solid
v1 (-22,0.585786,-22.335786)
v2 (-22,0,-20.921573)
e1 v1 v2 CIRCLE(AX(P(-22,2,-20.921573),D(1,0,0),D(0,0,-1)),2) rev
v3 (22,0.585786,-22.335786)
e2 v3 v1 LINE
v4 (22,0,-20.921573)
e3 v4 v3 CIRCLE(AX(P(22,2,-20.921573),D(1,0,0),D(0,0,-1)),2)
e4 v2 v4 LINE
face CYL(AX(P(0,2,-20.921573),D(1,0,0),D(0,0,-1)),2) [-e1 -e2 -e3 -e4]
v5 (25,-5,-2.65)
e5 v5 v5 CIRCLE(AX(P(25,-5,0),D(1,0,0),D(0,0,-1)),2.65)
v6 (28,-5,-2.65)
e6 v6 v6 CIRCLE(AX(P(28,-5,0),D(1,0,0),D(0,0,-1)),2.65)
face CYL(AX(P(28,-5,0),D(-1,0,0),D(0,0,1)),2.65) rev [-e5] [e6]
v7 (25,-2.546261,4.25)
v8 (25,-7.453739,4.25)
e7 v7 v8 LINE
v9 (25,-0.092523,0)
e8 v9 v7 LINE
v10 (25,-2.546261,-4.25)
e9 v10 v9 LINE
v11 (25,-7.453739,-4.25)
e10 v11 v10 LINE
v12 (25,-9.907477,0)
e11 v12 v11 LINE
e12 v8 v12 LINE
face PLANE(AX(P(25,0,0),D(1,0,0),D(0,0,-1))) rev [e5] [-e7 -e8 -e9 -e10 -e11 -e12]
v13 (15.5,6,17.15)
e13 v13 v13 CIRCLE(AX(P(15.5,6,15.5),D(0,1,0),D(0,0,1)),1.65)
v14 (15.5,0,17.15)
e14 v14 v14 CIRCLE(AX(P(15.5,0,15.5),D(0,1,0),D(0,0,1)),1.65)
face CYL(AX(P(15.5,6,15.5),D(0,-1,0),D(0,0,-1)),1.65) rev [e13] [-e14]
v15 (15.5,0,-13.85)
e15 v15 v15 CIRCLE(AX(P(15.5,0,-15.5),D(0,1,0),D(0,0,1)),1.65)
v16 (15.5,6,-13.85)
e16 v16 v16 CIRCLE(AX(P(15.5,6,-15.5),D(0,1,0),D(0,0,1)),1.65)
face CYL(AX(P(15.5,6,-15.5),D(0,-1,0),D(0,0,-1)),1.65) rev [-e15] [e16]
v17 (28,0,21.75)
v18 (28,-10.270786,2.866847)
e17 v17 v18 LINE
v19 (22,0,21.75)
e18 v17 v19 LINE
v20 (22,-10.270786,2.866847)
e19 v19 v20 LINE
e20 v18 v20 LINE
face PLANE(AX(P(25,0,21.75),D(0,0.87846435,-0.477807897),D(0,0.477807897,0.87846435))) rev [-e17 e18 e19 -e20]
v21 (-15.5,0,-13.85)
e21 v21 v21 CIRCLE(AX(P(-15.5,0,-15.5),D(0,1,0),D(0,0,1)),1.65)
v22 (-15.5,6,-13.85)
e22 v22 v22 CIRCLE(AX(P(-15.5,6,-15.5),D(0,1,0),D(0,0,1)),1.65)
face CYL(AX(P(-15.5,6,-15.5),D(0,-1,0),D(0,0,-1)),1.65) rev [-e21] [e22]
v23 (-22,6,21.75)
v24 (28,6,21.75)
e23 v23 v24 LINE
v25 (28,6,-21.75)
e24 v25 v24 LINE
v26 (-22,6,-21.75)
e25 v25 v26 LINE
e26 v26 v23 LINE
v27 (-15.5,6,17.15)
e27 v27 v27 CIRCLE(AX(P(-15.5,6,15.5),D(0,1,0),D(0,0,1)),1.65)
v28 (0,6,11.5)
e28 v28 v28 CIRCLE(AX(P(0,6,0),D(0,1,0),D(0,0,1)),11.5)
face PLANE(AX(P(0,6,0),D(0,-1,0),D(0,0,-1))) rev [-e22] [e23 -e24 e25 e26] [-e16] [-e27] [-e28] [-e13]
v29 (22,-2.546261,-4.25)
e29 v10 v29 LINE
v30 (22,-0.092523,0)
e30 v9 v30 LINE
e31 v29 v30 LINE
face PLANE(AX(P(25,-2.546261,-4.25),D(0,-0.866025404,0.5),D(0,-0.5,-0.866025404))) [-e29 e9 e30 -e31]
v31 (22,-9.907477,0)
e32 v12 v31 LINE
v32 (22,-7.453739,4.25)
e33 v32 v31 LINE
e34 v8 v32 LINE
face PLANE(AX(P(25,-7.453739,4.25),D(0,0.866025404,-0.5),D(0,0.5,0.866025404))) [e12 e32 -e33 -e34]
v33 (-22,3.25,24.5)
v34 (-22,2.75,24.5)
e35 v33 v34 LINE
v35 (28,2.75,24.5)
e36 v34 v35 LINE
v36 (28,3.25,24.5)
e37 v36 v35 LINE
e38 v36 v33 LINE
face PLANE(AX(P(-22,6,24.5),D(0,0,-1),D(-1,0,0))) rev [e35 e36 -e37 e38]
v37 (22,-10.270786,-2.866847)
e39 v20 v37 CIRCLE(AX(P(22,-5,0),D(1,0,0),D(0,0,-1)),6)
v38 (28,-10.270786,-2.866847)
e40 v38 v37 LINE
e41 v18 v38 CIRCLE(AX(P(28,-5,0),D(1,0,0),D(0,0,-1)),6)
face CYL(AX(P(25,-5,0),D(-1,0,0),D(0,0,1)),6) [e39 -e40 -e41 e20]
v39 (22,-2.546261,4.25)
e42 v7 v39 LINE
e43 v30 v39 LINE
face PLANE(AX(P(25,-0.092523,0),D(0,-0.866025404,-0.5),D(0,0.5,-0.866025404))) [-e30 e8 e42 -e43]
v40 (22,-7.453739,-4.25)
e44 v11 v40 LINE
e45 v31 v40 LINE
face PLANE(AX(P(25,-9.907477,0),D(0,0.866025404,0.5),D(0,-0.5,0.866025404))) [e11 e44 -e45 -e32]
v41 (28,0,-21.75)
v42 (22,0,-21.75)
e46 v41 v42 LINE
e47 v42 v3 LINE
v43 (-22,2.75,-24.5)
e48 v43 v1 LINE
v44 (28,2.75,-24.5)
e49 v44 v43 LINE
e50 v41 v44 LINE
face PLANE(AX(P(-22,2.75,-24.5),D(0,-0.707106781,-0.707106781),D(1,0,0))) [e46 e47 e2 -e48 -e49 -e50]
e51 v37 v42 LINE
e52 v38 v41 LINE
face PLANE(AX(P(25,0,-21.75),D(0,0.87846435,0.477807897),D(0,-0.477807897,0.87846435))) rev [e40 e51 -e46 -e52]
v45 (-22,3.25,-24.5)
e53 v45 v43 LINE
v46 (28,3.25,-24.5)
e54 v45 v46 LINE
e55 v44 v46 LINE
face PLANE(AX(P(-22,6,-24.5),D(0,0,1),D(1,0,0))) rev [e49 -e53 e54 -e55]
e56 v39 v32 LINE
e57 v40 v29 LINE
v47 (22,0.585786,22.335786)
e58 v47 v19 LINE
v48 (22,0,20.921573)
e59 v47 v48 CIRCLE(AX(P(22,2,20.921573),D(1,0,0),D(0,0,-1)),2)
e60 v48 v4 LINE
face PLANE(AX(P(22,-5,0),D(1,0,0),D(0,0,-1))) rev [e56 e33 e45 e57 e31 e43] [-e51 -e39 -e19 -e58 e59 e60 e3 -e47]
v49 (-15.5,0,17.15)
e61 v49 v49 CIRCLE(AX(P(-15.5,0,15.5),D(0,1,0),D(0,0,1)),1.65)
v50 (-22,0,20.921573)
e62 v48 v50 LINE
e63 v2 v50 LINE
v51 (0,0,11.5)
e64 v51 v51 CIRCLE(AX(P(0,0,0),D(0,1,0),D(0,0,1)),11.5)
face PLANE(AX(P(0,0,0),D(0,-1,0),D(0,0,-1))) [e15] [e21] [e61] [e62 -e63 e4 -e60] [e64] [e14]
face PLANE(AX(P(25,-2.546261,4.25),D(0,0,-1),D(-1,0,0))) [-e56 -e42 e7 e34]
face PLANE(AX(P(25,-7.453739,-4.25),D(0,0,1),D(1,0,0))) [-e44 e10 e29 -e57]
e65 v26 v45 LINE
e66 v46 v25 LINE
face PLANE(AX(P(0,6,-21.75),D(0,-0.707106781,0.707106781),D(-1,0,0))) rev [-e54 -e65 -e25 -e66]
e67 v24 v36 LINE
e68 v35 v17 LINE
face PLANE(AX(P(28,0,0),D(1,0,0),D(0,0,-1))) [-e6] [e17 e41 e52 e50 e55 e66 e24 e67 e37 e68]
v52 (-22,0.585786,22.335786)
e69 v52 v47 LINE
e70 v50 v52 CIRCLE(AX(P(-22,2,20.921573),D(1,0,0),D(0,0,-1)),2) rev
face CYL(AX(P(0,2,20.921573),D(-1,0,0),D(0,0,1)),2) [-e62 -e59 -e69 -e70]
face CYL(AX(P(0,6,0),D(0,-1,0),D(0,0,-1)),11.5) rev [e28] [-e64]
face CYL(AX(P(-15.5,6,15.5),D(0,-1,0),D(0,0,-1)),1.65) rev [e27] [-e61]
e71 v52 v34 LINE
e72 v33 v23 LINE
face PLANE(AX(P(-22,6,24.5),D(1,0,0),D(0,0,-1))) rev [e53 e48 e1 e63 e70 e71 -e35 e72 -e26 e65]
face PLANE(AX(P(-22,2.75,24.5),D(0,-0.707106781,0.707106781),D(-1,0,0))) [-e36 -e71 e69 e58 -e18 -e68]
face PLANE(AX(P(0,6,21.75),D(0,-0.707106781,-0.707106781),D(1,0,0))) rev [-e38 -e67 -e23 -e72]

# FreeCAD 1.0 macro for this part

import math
import FreeCAD as App
import Part
import Sketcher
from FreeCAD import Vector
Q = App.Units.Quantity


def edges_at(feature, points):
    """Names of the edges that pass closest to the given points."""
    edges = feature.Shape.Edges
    near = lambda p: min(range(len(edges)), key=lambda i: edges[i].distToShape(Part.Vertex(*p))[0])
    return sorted({f"Edge{near(p) + 1}" for p in points})


def add_polygon(sketch, points):
    """Adds a closed chain of lines whose ends are joined by coincident constraints."""
    first, n = sketch.GeometryCount, len(points)
    for a, b in zip(points, points[1:] + points[:1]):
        sketch.addGeometry(Part.LineSegment(App.Vector(*a, 0), App.Vector(*b, 0)), False)
    for i in range(n):
        sketch.addConstraint(Sketcher.Constraint("Coincident", first + i, 2, first + (i + 1) % n, 1))

doc = App.newDocument("Part")
body = doc.addObject("PartDesign::Body", "Body")

sketch1 = body.newObject("Sketcher::SketchObject", "Sketch")
sketch1.AttachmentSupport = (doc.getObject("XZ_Plane"), [""])
sketch1.MapMode = "FlatFace"
add_polygon(sketch1, [(-22, -24.5), (-22, 24.5), (22, 24.5), (22, -24.5)])
sketch1.addGeometry(Part.Circle(Vector(-15.5, 15.5, 0), Vector(0, 0, 1), 1.6), False)
sketch1.addGeometry(Part.Circle(Vector(15.5, 15.5, 0), Vector(0, 0, 1), 1.6), False)
sketch1.addGeometry(Part.Circle(Vector(-15.5, -15.5, 0), Vector(0, 0, 1), 1.6), False)
sketch1.addGeometry(Part.Circle(Vector(0, 0, 0), Vector(0, 0, 1), 11.5), False)
sketch1.addGeometry(Part.Circle(Vector(15.5, -15.5, 0), Vector(0, 0, 1), 1.6), False)
sketch1.addConstraint([
    Sketcher.Constraint("Vertical", 0),
    Sketcher.Constraint("Horizontal", 1),
    Sketcher.Constraint("Vertical", 2),
    Sketcher.Constraint("Horizontal", 3),
    Sketcher.Constraint("Coincident", 7, 3, -1, 1),
    Sketcher.Constraint("Equal", 4, 5),
    Sketcher.Constraint("Equal", 5, 6),
    Sketcher.Constraint("Equal", 6, 8),
    Sketcher.Constraint("Symmetric", 5, 3, 6, 3, -1, 1),
    Sketcher.Constraint("Symmetric", 4, 3, 8, 3, -1, 1),
    Sketcher.Constraint("Symmetric", 0, 2, 2, 2, -1, 1),
    Sketcher.Constraint("Symmetric", 4, 3, 5, 3, -2),
    Sketcher.Constraint("Diameter", 7, Q("23 mm")),
    Sketcher.Constraint("Diameter", 4, Q("3.3 mm")),
    Sketcher.Constraint("DistanceX", 1, 1, 1, 2, Q("44 mm")),
    Sketcher.Constraint("DistanceY", 0, 1, 0, 2, Q("49 mm")),
    Sketcher.Constraint("DistanceX", 4, 3, 5, 3, Q("31 mm")),
    Sketcher.Constraint("DistanceY", 6, 3, 4, 3, Q("31 mm")),
])
pad1 = body.newObject("PartDesign::Pad", "Pad")
pad1.Profile = sketch1
pad1.Length = 6
pad1.Reversed = True
doc.recompute()

chamfer = body.newObject("PartDesign::Chamfer", "Chamfer")
chamfer.Base = (pad1, edges_at(pad1, [
    (0, 6, 24.5),
    (0, 0, 24.5),
    (0, 0, -24.5),
    (0, 6, -24.5),
]))
chamfer.Size = 2.75

sketch2 = body.newObject("Sketcher::SketchObject", "Sketch001")
sketch2.AttachmentSupport = (doc.getObject("YZ_Plane"), [""])
sketch2.MapMode = "FlatFace"
sketch2.AttachmentOffset = App.Placement(Vector(0, 0, 22), App.Rotation())
sketch2.addGeometry(Part.LineSegment(Vector(6, -21.8, 0), Vector(6, 21.8, 0)), False)
sketch2.addGeometry(Part.LineSegment(Vector(6, 21.8, 0), Vector(0, 21.8, 0)), False)
sketch2.addGeometry(Part.LineSegment(Vector(0, 21.8, 0), Vector(-10.3, 2.9, 0)), False)
sketch2.addGeometry(Part.ArcOfCircle(Part.Circle(Vector(-5, 0, 0), Vector(0, 0, 1), 6), math.radians(151), math.radians(209)), False)
sketch2.addGeometry(Part.LineSegment(Vector(-10.3, -2.9, 0), Vector(0, -21.8, 0)), False)
sketch2.addGeometry(Part.LineSegment(Vector(0, -21.8, 0), Vector(6, -21.8, 0)), False)
add_polygon(sketch2, [(-9.9, 0), (-7.5, 4.2), (-2.5, 4.2), (-0.1, 0), (-2.5, -4.2), (-7.5, -4.2)])
sketch2.addConstraint([
    Sketcher.Constraint("Coincident", 0, 2, 1, 1),
    Sketcher.Constraint("Coincident", 1, 2, 2, 1),
    Sketcher.Constraint("Tangent", 2, 2, 3, 1),
    Sketcher.Constraint("Tangent", 3, 2, 4, 1),
    Sketcher.Constraint("Coincident", 4, 2, 5, 1),
    Sketcher.Constraint("Coincident", 5, 2, 0, 1),
    Sketcher.Constraint("Vertical", 0),
    Sketcher.Constraint("Horizontal", 1),
    Sketcher.Constraint("Horizontal", 5),
    Sketcher.Constraint("Horizontal", 7),
    Sketcher.Constraint("Horizontal", 10),
    Sketcher.Constraint("Symmetric", 1, 2, 4, 2, -1, 1),
    Sketcher.Constraint("Symmetric", 2, 2, 3, 2, -1),
    Sketcher.Constraint("Symmetric", 7, 2, 9, 2, -1),
    Sketcher.Constraint("PointOnObject", 8, 2, -1),
    Sketcher.Constraint("PointOnObject", 11, 2, -1),
    Sketcher.Constraint("Parallel", 6, 9),
    Sketcher.Constraint("Parallel", 8, 11),
    Sketcher.Constraint("Radius", 3, Q("6 mm")),
    Sketcher.Constraint("DistanceX", 1, 2, 1, 1, Q("6 mm")),
    Sketcher.Constraint("Angle", 6, Q("60 deg")),
    Sketcher.Constraint("DistanceY", 0, 1, 0, 2, Q("43.5 mm")),
    Sketcher.Constraint("DistanceX", 3, 3, -1, 1, Q("5 mm")),
    Sketcher.Constraint("DistanceY", 6, 2, 1, 2, Q("17.5 mm")),
    Sketcher.Constraint("DistanceX", 7, 1, 7, 2, Q("4.907477 mm")),
    Sketcher.Constraint("DistanceX", 6, 2, -1, 1, Q("7.453739 mm")),
])
pad2 = body.newObject("PartDesign::Pad", "Pad001")
pad2.Profile = sketch2
pad2.Length = 3

sketch3 = body.newObject("Sketcher::SketchObject", "Sketch002")
sketch3.AttachmentSupport = (doc.getObject("YZ_Plane"), [""])
sketch3.MapMode = "FlatFace"
sketch3.AttachmentOffset = App.Placement(Vector(0, 0, 25), App.Rotation())
sketch3.addGeometry([
    Part.LineSegment(Vector(6, -21.8, 0), Vector(6, 21.8, 0)),
    Part.LineSegment(Vector(6, 21.8, 0), Vector(0, 21.8, 0)),
    Part.LineSegment(Vector(0, 21.8, 0), Vector(-10.3, 2.9, 0)),
    Part.ArcOfCircle(Part.Circle(Vector(-5, 0, 0), Vector(0, 0, 1), 6), math.radians(151), math.radians(209)),
    Part.LineSegment(Vector(-10.3, -2.9, 0), Vector(0, -21.8, 0)),
    Part.LineSegment(Vector(0, -21.8, 0), Vector(6, -21.8, 0)),
    Part.Circle(Vector(-5, 0, 0), Vector(0, 0, 1), 2.6),
], False)
sketch3.addConstraint([
    Sketcher.Constraint("Coincident", 0, 2, 1, 1),
    Sketcher.Constraint("Coincident", 1, 2, 2, 1),
    Sketcher.Constraint("Tangent", 2, 2, 3, 1),
    Sketcher.Constraint("Tangent", 3, 2, 4, 1),
    Sketcher.Constraint("Coincident", 4, 2, 5, 1),
    Sketcher.Constraint("Coincident", 5, 2, 0, 1),
    Sketcher.Constraint("Vertical", 0),
    Sketcher.Constraint("Horizontal", 1),
    Sketcher.Constraint("Horizontal", 5),
    Sketcher.Constraint("Coincident", 6, 3, 3, 3),
    Sketcher.Constraint("Symmetric", 1, 2, 4, 2, -1, 1),
    Sketcher.Constraint("Symmetric", 2, 2, 3, 2, -1),
    Sketcher.Constraint("Radius", 3, Q("6 mm")),
    Sketcher.Constraint("Diameter", 6, Q("5.3 mm")),
    Sketcher.Constraint("DistanceX", 1, 2, 1, 1, Q("6 mm")),
    Sketcher.Constraint("DistanceY", 0, 1, 0, 2, Q("43.5 mm")),
    Sketcher.Constraint("DistanceX", 3, 3, -1, 1, Q("5 mm")),
])
pad3 = body.newObject("PartDesign::Pad", "Pad002")
pad3.Profile = sketch3
pad3.Length = 3

sketch4 = body.newObject("Sketcher::SketchObject", "Sketch003")
sketch4.AttachmentSupport = (doc.getObject("YZ_Plane"), [""])
sketch4.MapMode = "FlatFace"
sketch4.AttachmentOffset = App.Placement(Vector(0, 0, 22), App.Rotation())
add_polygon(sketch4, [(0, 21.8), (6, 21.8), (3.2, 24.5), (2.8, 24.5)])
add_polygon(sketch4, [(6, -21.8), (0, -21.8), (2.8, -24.5), (3.2, -24.5)])
sketch4.addConstraint([
    Sketcher.Constraint("Horizontal", 0),
    Sketcher.Constraint("Horizontal", 2),
    Sketcher.Constraint("Horizontal", 4),
    Sketcher.Constraint("Horizontal", 6),
    Sketcher.Constraint("Symmetric", 3, 2, 4, 2, -1, 1),
    Sketcher.Constraint("Symmetric", 2, 2, 5, 2, -1),
    Sketcher.Constraint("PointOnObject", 3, 2, -2),
    Sketcher.Constraint("Perpendicular", 1, 3),
    Sketcher.Constraint("Perpendicular", 3, 5),
    Sketcher.Constraint("Perpendicular", 5, 7),
    Sketcher.Constraint("Vertical", 1, 2, 6, 2),
    Sketcher.Constraint("DistanceX", 0, 1, 0, 2, Q("6 mm")),
    Sketcher.Constraint("DistanceX", 2, 2, 2, 1, Q("0.5 mm")),
    Sketcher.Constraint("DistanceY", 5, 2, 2, 2, Q("49 mm")),
])
pad4 = body.newObject("PartDesign::Pad", "Pad003")
pad4.Profile = sketch4
pad4.Length = 6
doc.recompute()

fillet = body.newObject("PartDesign::Fillet", "Fillet")
fillet.Base = (pad4, edges_at(pad4, [(0, 0, 21.75), (0, 0, -21.75)]))
fillet.Radius = 2

doc.recompute()
